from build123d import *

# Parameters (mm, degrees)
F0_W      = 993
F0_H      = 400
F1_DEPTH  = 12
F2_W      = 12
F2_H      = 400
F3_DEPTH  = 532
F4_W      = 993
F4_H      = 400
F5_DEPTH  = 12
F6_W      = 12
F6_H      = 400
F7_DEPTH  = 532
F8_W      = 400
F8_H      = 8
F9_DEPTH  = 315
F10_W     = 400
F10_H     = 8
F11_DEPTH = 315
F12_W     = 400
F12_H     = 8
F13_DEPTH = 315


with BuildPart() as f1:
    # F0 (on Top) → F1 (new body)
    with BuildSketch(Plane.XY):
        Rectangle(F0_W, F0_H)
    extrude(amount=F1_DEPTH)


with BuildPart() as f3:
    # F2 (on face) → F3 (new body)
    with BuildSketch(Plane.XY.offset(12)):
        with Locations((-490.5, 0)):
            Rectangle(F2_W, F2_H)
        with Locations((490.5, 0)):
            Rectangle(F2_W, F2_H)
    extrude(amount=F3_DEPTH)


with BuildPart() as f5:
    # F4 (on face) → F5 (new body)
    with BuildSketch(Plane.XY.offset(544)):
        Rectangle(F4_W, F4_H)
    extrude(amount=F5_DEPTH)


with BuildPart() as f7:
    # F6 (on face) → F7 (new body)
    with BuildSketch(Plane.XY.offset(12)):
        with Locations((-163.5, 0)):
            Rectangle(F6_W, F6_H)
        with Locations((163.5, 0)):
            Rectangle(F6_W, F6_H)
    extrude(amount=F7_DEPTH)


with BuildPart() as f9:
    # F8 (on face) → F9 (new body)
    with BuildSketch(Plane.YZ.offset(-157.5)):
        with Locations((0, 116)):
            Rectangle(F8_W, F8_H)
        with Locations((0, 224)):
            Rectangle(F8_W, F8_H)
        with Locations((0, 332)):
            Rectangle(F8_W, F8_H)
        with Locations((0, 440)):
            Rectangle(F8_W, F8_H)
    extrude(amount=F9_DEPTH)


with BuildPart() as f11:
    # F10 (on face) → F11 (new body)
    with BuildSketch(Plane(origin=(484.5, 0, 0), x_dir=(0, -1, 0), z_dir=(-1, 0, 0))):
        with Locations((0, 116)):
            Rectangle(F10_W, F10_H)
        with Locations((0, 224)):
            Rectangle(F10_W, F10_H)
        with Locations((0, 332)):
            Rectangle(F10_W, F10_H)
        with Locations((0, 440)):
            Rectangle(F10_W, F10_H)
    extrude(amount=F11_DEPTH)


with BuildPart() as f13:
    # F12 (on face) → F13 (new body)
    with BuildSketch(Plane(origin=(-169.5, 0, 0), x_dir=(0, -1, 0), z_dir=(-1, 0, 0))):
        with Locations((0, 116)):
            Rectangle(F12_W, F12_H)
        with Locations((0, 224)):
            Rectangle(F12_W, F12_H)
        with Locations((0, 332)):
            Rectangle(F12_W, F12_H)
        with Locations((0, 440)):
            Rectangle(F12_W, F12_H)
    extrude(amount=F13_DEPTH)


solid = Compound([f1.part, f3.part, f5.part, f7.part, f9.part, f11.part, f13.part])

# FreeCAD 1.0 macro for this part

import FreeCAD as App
import Part
import Sketcher
Q = App.Units.Quantity


def add_polygon(sketch, points):
    """Adds a closed chain of lines whose ends are joined by coincident constraints."""
    first, n = sketch.GeometryCount, len(points)
    for a, b in zip(points, points[1:] + points[:1]):
        sketch.addGeometry(Part.LineSegment(App.Vector(*a, 0), App.Vector(*b, 0)), False)
    for i in range(n):
        sketch.addConstraint(Sketcher.Constraint("Coincident", first + i, 2, first + (i + 1) % n, 1))

doc = App.newDocument("Part")
body = doc.addObject("PartDesign::Body", "Body")

# Sketch on XY plane
sketch1 = body.newObject("Sketcher::SketchObject", "Sketch")
sketch1.AttachmentSupport = (doc.getObject("XY_Plane"), [""])
sketch1.MapMode = "FlatFace"
add_polygon(sketch1, [(-496.5, 200), (-496.5, -200), (496.5, -200), (496.5, 200)])  # lines 0-3
sketch1.addConstraint([
    Sketcher.Constraint("Vertical", 0),
    Sketcher.Constraint("Horizontal", 1),
    Sketcher.Constraint("Vertical", 2),
    Sketcher.Constraint("Horizontal", 3),
    Sketcher.Constraint("Symmetric", 0, 2, 2, 2, -1, 1),
    Sketcher.Constraint("DistanceX", 1, 1, 1, 2, Q("993 mm")),
    Sketcher.Constraint("DistanceY", 0, 2, 0, 1, Q("400 mm")),
])
pad1 = body.newObject("PartDesign::Pad", "Pad")
pad1.Profile = sketch1
pad1.Length = 12
body2 = doc.addObject("PartDesign::Body", "Body001")
body2.AllowCompound = True

# Sketch on XY plane
sketch2 = body2.newObject("Sketcher::SketchObject", "Sketch001")
sketch2.AttachmentSupport = (doc.getObject("XY_Plane001"), [""])
sketch2.MapMode = "FlatFace"
sketch2.AttachmentOffset = App.Placement(App.Vector(0, 0, 12), App.Rotation())
add_polygon(sketch2, [(-496.5, 200), (-496.5, -200), (-484.5, -200), (-484.5, 200)])  # lines 0-3
add_polygon(sketch2, [(484.5, 200), (484.5, -200), (496.5, -200), (496.5, 200)])  # lines 4-7
sketch2.addConstraint([
    Sketcher.Constraint("Vertical", 0),
    Sketcher.Constraint("Horizontal", 1),
    Sketcher.Constraint("Vertical", 2),
    Sketcher.Constraint("Horizontal", 3),
    Sketcher.Constraint("Vertical", 4),
    Sketcher.Constraint("Horizontal", 5),
    Sketcher.Constraint("Vertical", 6),
    Sketcher.Constraint("Horizontal", 7),
    Sketcher.Constraint("Symmetric", 2, 2, 4, 2, -1, 1),
    Sketcher.Constraint("Symmetric", 0, 2, 6, 2, -1, 1),
    Sketcher.Constraint("Horizontal", 1, 2, 4, 2),
    Sketcher.Constraint("DistanceX", 1, 1, 1, 2, Q("12 mm")),
    Sketcher.Constraint("DistanceY", 0, 2, 0, 1, Q("400 mm")),
    Sketcher.Constraint("DistanceX", 1, 2, 4, 2, Q("969 mm")),
])
pad2 = body2.newObject("PartDesign::Pad", "Pad001")
pad2.Profile = sketch2
pad2.Length = 532
body3 = doc.addObject("PartDesign::Body", "Body002")

# Sketch on XY plane
sketch3 = body3.newObject("Sketcher::SketchObject", "Sketch002")
sketch3.AttachmentSupport = (doc.getObject("XY_Plane002"), [""])
sketch3.MapMode = "FlatFace"
sketch3.AttachmentOffset = App.Placement(App.Vector(0, 0, 544), App.Rotation())
add_polygon(sketch3, [(-496.5, 200), (-496.5, -200), (496.5, -200), (496.5, 200)])  # lines 0-3
sketch3.addConstraint([
    Sketcher.Constraint("Vertical", 0),
    Sketcher.Constraint("Horizontal", 1),
    Sketcher.Constraint("Vertical", 2),
    Sketcher.Constraint("Horizontal", 3),
    Sketcher.Constraint("Symmetric", 0, 2, 2, 2, -1, 1),
    Sketcher.Constraint("DistanceX", 1, 1, 1, 2, Q("993 mm")),
    Sketcher.Constraint("DistanceY", 0, 2, 0, 1, Q("400 mm")),
])
pad3 = body3.newObject("PartDesign::Pad", "Pad002")
pad3.Profile = sketch3
pad3.Length = 12
body4 = doc.addObject("PartDesign::Body", "Body003")
body4.AllowCompound = True

# Sketch on XY plane
sketch4 = body4.newObject("Sketcher::SketchObject", "Sketch003")
sketch4.AttachmentSupport = (doc.getObject("XY_Plane003"), [""])
sketch4.MapMode = "FlatFace"
sketch4.AttachmentOffset = App.Placement(App.Vector(0, 0, 12), App.Rotation())
add_polygon(sketch4, [(-169.5, 200), (-169.5, -200), (-157.5, -200), (-157.5, 200)])  # lines 0-3
add_polygon(sketch4, [(157.5, 200), (157.5, -200), (169.5, -200), (169.5, 200)])  # lines 4-7
sketch4.addConstraint([
    Sketcher.Constraint("Vertical", 0),
    Sketcher.Constraint("Horizontal", 1),
    Sketcher.Constraint("Vertical", 2),
    Sketcher.Constraint("Horizontal", 3),
    Sketcher.Constraint("Vertical", 4),
    Sketcher.Constraint("Horizontal", 5),
    Sketcher.Constraint("Vertical", 6),
    Sketcher.Constraint("Horizontal", 7),
    Sketcher.Constraint("Symmetric", 2, 2, 4, 2, -1, 1),
    Sketcher.Constraint("Symmetric", 0, 2, 6, 2, -1, 1),
    Sketcher.Constraint("Horizontal", 1, 2, 4, 2),
    Sketcher.Constraint("DistanceX", 1, 1, 1, 2, Q("12 mm")),
    Sketcher.Constraint("DistanceY", 0, 2, 0, 1, Q("400 mm")),
    Sketcher.Constraint("DistanceX", 1, 2, 4, 2, Q("315 mm")),
])
pad4 = body4.newObject("PartDesign::Pad", "Pad003")
pad4.Profile = sketch4
pad4.Length = 532
body5 = doc.addObject("PartDesign::Body", "Body004")
body5.AllowCompound = True

# Sketch on YZ plane
sketch5 = body5.newObject("Sketcher::SketchObject", "Sketch004")
sketch5.AttachmentSupport = (doc.getObject("YZ_Plane004"), [""])
sketch5.MapMode = "FlatFace"
sketch5.AttachmentOffset = App.Placement(App.Vector(0, 0, -157.5), App.Rotation())
add_polygon(sketch5, [(-200, 120), (-200, 112), (200, 112), (200, 120)])  # lines 0-3
add_polygon(sketch5, [(-200, 228), (-200, 220), (200, 220), (200, 228)])  # lines 4-7
add_polygon(sketch5, [(-200, 336), (-200, 328), (200, 328), (200, 336)])  # lines 8-11
add_polygon(sketch5, [(-200, 444), (-200, 436), (200, 436), (200, 444)])  # lines 12-15
sketch5.addConstraint([
    Sketcher.Constraint("Vertical", 0),
    Sketcher.Constraint("Horizontal", 1),
    Sketcher.Constraint("Vertical", 2),
    Sketcher.Constraint("Horizontal", 3),
    Sketcher.Constraint("Vertical", 4),
    Sketcher.Constraint("Horizontal", 5),
    Sketcher.Constraint("Vertical", 6),
    Sketcher.Constraint("Horizontal", 7),
    Sketcher.Constraint("Vertical", 8),
    Sketcher.Constraint("Horizontal", 9),
    Sketcher.Constraint("Vertical", 10),
    Sketcher.Constraint("Horizontal", 11),
    Sketcher.Constraint("Vertical", 12),
    Sketcher.Constraint("Horizontal", 13),
    Sketcher.Constraint("Vertical", 14),
    Sketcher.Constraint("Horizontal", 15),
    Sketcher.Constraint("Vertical", 3, 2, 4, 2),
    Sketcher.Constraint("Vertical", 2, 2, 5, 2),
    Sketcher.Constraint("Vertical", 7, 2, 8, 2),
    Sketcher.Constraint("Vertical", 6, 2, 9, 2),
    Sketcher.Constraint("Vertical", 11, 2, 12, 2),
    Sketcher.Constraint("Vertical", 10, 2, 13, 2),
    Sketcher.Constraint("Equal", 2, 4),
    Sketcher.Constraint("Equal", 6, 8),
    Sketcher.Constraint("Equal", 10, 12),
    Sketcher.Constraint("DistanceX", 1, 1, 1, 2, Q("400 mm")),
    Sketcher.Constraint("DistanceY", 0, 2, 0, 1, Q("8 mm")),
    Sketcher.Constraint("DistanceX", 0, 2, -1, 1, Q("200 mm")),
    Sketcher.Constraint("DistanceY", -1, 1, 0, 2, Q("112 mm")),
    Sketcher.Constraint("DistanceY", -1, 1, 4, 2, Q("220 mm")),
    Sketcher.Constraint("DistanceY", -1, 1, 8, 2, Q("328 mm")),
    Sketcher.Constraint("DistanceY", -1, 1, 12, 2, Q("436 mm")),
])
pad5 = body5.newObject("PartDesign::Pad", "Pad004")
pad5.Profile = sketch5
pad5.Length = 315
body6 = doc.addObject("PartDesign::Body", "Body005")
body6.AllowCompound = True

# Sketch on YZ plane
sketch6 = body6.newObject("Sketcher::SketchObject", "Sketch005")
sketch6.AttachmentSupport = (doc.getObject("YZ_Plane005"), [""])
sketch6.MapMode = "FlatFace"
sketch6.AttachmentOffset = App.Placement(App.Vector(0, 0, 484.5), App.Rotation())
add_polygon(sketch6, [(200, 120), (200, 112), (-200, 112), (-200, 120)])  # lines 0-3
add_polygon(sketch6, [(200, 228), (200, 220), (-200, 220), (-200, 228)])  # lines 4-7
add_polygon(sketch6, [(200, 336), (200, 328), (-200, 328), (-200, 336)])  # lines 8-11
add_polygon(sketch6, [(200, 444), (200, 436), (-200, 436), (-200, 444)])  # lines 12-15
sketch6.addConstraint([
    Sketcher.Constraint("Vertical", 0),
    Sketcher.Constraint("Horizontal", 1),
    Sketcher.Constraint("Vertical", 2),
    Sketcher.Constraint("Horizontal", 3),
    Sketcher.Constraint("Vertical", 4),
    Sketcher.Constraint("Horizontal", 5),
    Sketcher.Constraint("Vertical", 6),
    Sketcher.Constraint("Horizontal", 7),
    Sketcher.Constraint("Vertical", 8),
    Sketcher.Constraint("Horizontal", 9),
    Sketcher.Constraint("Vertical", 10),
    Sketcher.Constraint("Horizontal", 11),
    Sketcher.Constraint("Vertical", 12),
    Sketcher.Constraint("Horizontal", 13),
    Sketcher.Constraint("Vertical", 14),
    Sketcher.Constraint("Horizontal", 15),
    Sketcher.Constraint("Vertical", 3, 2, 4, 2),
    Sketcher.Constraint("Vertical", 2, 2, 5, 2),
    Sketcher.Constraint("Vertical", 7, 2, 8, 2),
    Sketcher.Constraint("Vertical", 6, 2, 9, 2),
    Sketcher.Constraint("Vertical", 11, 2, 12, 2),
    Sketcher.Constraint("Vertical", 10, 2, 13, 2),
    Sketcher.Constraint("Equal", 2, 4),
    Sketcher.Constraint("Equal", 6, 8),
    Sketcher.Constraint("Equal", 10, 12),
    Sketcher.Constraint("DistanceX", 1, 2, 1, 1, Q("400 mm")),
    Sketcher.Constraint("DistanceY", 0, 2, 0, 1, Q("8 mm")),
    Sketcher.Constraint("DistanceX", -1, 1, 0, 2, Q("200 mm")),
    Sketcher.Constraint("DistanceY", -1, 1, 0, 2, Q("112 mm")),
    Sketcher.Constraint("DistanceY", -1, 1, 4, 2, Q("220 mm")),
    Sketcher.Constraint("DistanceY", -1, 1, 8, 2, Q("328 mm")),
    Sketcher.Constraint("DistanceY", -1, 1, 12, 2, Q("436 mm")),
])
pad6 = body6.newObject("PartDesign::Pad", "Pad005")
pad6.Profile = sketch6
pad6.Length = 315
pad6.Reversed = True
body7 = doc.addObject("PartDesign::Body", "Body006")
body7.AllowCompound = True

# Sketch on YZ plane
sketch7 = body7.newObject("Sketcher::SketchObject", "Sketch006")
sketch7.AttachmentSupport = (doc.getObject("YZ_Plane006"), [""])
sketch7.MapMode = "FlatFace"
sketch7.AttachmentOffset = App.Placement(App.Vector(0, 0, -169.5), App.Rotation())
add_polygon(sketch7, [(200, 120), (200, 112), (-200, 112), (-200, 120)])  # lines 0-3
add_polygon(sketch7, [(200, 228), (200, 220), (-200, 220), (-200, 228)])  # lines 4-7
add_polygon(sketch7, [(200, 336), (200, 328), (-200, 328), (-200, 336)])  # lines 8-11
add_polygon(sketch7, [(200, 444), (200, 436), (-200, 436), (-200, 444)])  # lines 12-15
sketch7.addConstraint([
    Sketcher.Constraint("Vertical", 0),
    Sketcher.Constraint("Horizontal", 1),
    Sketcher.Constraint("Vertical", 2),
    Sketcher.Constraint("Horizontal", 3),
    Sketcher.Constraint("Vertical", 4),
    Sketcher.Constraint("Horizontal", 5),
    Sketcher.Constraint("Vertical", 6),
    Sketcher.Constraint("Horizontal", 7),
    Sketcher.Constraint("Vertical", 8),
    Sketcher.Constraint("Horizontal", 9),
    Sketcher.Constraint("Vertical", 10),
    Sketcher.Constraint("Horizontal", 11),
    Sketcher.Constraint("Vertical", 12),
    Sketcher.Constraint("Horizontal", 13),
    Sketcher.Constraint("Vertical", 14),
    Sketcher.Constraint("Horizontal", 15),
    Sketcher.Constraint("Vertical", 3, 2, 4, 2),
    Sketcher.Constraint("Vertical", 2, 2, 5, 2),
    Sketcher.Constraint("Vertical", 7, 2, 8, 2),
    Sketcher.Constraint("Vertical", 6, 2, 9, 2),
    Sketcher.Constraint("Vertical", 11, 2, 12, 2),
    Sketcher.Constraint("Vertical", 10, 2, 13, 2),
    Sketcher.Constraint("Equal", 2, 4),
    Sketcher.Constraint("Equal", 6, 8),
    Sketcher.Constraint("Equal", 10, 12),
    Sketcher.Constraint("DistanceX", 1, 2, 1, 1, Q("400 mm")),
    Sketcher.Constraint("DistanceY", 0, 2, 0, 1, Q("8 mm")),
    Sketcher.Constraint("DistanceX", -1, 1, 0, 2, Q("200 mm")),
    Sketcher.Constraint("DistanceY", -1, 1, 0, 2, Q("112 mm")),
    Sketcher.Constraint("DistanceY", -1, 1, 4, 2, Q("220 mm")),
    Sketcher.Constraint("DistanceY", -1, 1, 8, 2, Q("328 mm")),
    Sketcher.Constraint("DistanceY", -1, 1, 12, 2, Q("436 mm")),
])
pad7 = body7.newObject("PartDesign::Pad", "Pad006")
pad7.Profile = sketch7
pad7.Length = 315
pad7.Reversed = True

doc.recompute()
